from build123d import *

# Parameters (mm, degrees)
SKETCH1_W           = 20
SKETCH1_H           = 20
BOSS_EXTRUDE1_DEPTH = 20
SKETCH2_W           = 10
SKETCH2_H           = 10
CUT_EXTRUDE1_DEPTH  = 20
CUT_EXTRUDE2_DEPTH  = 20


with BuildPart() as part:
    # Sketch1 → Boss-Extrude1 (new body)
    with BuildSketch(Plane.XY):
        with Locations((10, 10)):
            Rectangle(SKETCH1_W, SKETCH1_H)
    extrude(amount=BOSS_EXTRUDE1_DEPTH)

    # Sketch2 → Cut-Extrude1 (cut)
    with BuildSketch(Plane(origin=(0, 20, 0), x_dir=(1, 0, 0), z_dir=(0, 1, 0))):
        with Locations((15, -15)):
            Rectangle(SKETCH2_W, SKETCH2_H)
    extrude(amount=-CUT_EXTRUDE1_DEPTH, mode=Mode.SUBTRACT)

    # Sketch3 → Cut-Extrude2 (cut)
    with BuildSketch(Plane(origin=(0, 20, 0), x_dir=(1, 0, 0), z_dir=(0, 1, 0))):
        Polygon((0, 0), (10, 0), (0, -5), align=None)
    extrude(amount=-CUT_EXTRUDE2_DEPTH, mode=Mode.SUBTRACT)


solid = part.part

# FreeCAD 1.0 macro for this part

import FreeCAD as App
import Part
import Sketcher
from FreeCAD import Vector
Q = App.Units.Quantity


def add_polygon(sketch, points):
    """Adds a closed chain of lines whose ends are joined by coincident constraints."""
    first, n = sketch.GeometryCount, len(points)
    for a, b in zip(points, points[1:] + points[:1]):
        sketch.addGeometry(Part.LineSegment(App.Vector(*a, 0), App.Vector(*b, 0)), False)
    for i in range(n):
        sketch.addConstraint(Sketcher.Constraint("Coincident", first + i, 2, first + (i + 1) % n, 1))

doc = App.newDocument("Part")
body = doc.addObject("PartDesign::Body", "Body")

# Sketch on XY plane
sketch1 = body.newObject("Sketcher::SketchObject", "Sketch")
sketch1.AttachmentSupport = (doc.getObject("XY_Plane"), [""])
sketch1.MapMode = "FlatFace"
add_polygon(sketch1, [(0, 20), (0, 0), (20, 0), (20, 20)])  # lines 0-3
sketch1.addConstraint([
    Sketcher.Constraint("Vertical", 0),
    Sketcher.Constraint("Horizontal", 1),
    Sketcher.Constraint("Vertical", 2),
    Sketcher.Constraint("Horizontal", 3),
    Sketcher.Constraint("Coincident", 0, 2, -1, 1),
    Sketcher.Constraint("Equal", 3, 0),
    Sketcher.Constraint("DistanceX", 1, 1, 1, 2, Q("20 mm")),
])
pad1 = body.newObject("PartDesign::Pad", "Pad")
pad1.Profile = sketch1
pad1.Length = 20

# Sketch on XZ plane
sketch2 = body.newObject("Sketcher::SketchObject", "Sketch001")
sketch2.AttachmentSupport = (doc.getObject("XZ_Plane"), [""])
sketch2.MapMode = "FlatFace"
sketch2.AttachmentOffset = App.Placement(Vector(0, 0, -20), App.Rotation())
add_polygon(sketch2, [(10, 10), (10, 20), (20, 20), (20, 10)])  # lines 0-3
sketch2.addConstraint([
    Sketcher.Constraint("Vertical", 0),
    Sketcher.Constraint("Horizontal", 1),
    Sketcher.Constraint("Vertical", 2),
    Sketcher.Constraint("Horizontal", 3),
    Sketcher.Constraint("Equal", 3, 0),
    Sketcher.Constraint("DistanceX", 1, 1, 1, 2, Q("10 mm")),
    Sketcher.Constraint("DistanceX", -1, 1, 0, 2, Q("10 mm")),
    Sketcher.Constraint("DistanceY", -1, 1, 0, 2, Q("20 mm")),
])
pocket1 = body.newObject("PartDesign::Pocket", "Pocket")
pocket1.Profile = sketch2
pocket1.Length = 20
pocket1.Reversed = True

# Sketch on XZ plane
sketch3 = body.newObject("Sketcher::SketchObject", "Sketch002")
sketch3.AttachmentSupport = (doc.getObject("XZ_Plane"), [""])
sketch3.MapMode = "FlatFace"
sketch3.AttachmentOffset = App.Placement(Vector(0, 0, -20), App.Rotation())
add_polygon(sketch3, [(10, 0), (0, 0), (0, 5)])  # lines 0-2
sketch3.addConstraint([
    Sketcher.Constraint("Horizontal", 0),
    Sketcher.Constraint("Vertical", 1),
    Sketcher.Constraint("Coincident", 0, 2, -1, 1),
    Sketcher.Constraint("DistanceX", 0, 2, 0, 1, Q("10 mm")),
    Sketcher.Constraint("DistanceY", 1, 1, 1, 2, Q("5 mm")),
])
pocket2 = body.newObject("PartDesign::Pocket", "Pocket001")
pocket2.Profile = sketch3
pocket2.Length = 20
pocket2.Reversed = True

doc.recompute()
